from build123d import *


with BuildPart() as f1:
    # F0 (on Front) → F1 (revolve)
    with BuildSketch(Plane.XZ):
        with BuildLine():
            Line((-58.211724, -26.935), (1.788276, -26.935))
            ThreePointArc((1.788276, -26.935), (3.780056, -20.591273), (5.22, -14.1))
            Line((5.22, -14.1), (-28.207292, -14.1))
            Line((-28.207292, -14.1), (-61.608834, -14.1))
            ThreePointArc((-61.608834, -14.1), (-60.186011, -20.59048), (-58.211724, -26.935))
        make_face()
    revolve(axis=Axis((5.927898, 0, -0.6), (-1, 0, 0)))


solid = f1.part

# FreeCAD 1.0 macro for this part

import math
import FreeCAD as App
import Part
import Sketcher
Q = App.Units.Quantity

doc = App.newDocument("Part")
body = doc.addObject("PartDesign::Body", "Body")

# Sketch on XZ plane
sketch1 = body.newObject("Sketcher::SketchObject", "Sketch")
sketch1.AttachmentSupport = (doc.getObject("XZ_Plane"), [""])
sketch1.MapMode = "FlatFace"
sketch1.addGeometry(Part.LineSegment(App.Vector(-58.211724, -26.935, 0), App.Vector(1.788276, -26.935, 0)), False)
sketch1.addGeometry(Part.ArcOfCircle(Part.Circle(App.Vector(-70.989316, -0.600011, 0), App.Vector(0, 0, 1), 77.395798), math.radians(-19.892948), math.radians(-10.045369)), False)
sketch1.addGeometry(Part.LineSegment(App.Vector(5.22, -14.1, 0), App.Vector(-61.608834, -14.1, 0)), False)
sketch1.addGeometry(Part.ArcOfCircle(Part.Circle(App.Vector(14.633589, -0.787565, 0), App.Vector(0, 0, 1), 77.395917), math.radians(-170.095623), math.radians(-160.254671)), False)
sketch1.addGeometry(Part.LineSegment(App.Vector(14.633589, -0.6, 0), App.Vector(-70.989316, -0.6, 0)), True)  # axis
sketch1.addConstraint(Sketcher.Constraint("Coincident", 0, 2, 1, 1))
sketch1.addConstraint(Sketcher.Constraint("Coincident", 1, 2, 2, 1))
sketch1.addConstraint(Sketcher.Constraint("Coincident", 2, 2, 3, 1))
sketch1.addConstraint(Sketcher.Constraint("Coincident", 3, 2, 0, 1))
sketch1.addConstraint(Sketcher.Constraint("Horizontal", 0))
sketch1.addConstraint(Sketcher.Constraint("Horizontal", 2))
sketch1.addConstraint(Sketcher.Constraint("Horizontal", 4))
sketch1.addConstraint(Sketcher.Constraint("Vertical", 3, 3, 4, 1))
sketch1.addConstraint(Sketcher.Constraint("Vertical", 1, 3, 4, 2))
sketch1.addConstraint(Sketcher.Constraint("DistanceX", 0, 1, 0, 2, Q("60 mm")))
sketch1.addConstraint(Sketcher.Constraint("DistanceY", 1, 2, -1, 1, Q("14.1 mm")))
sketch1.addConstraint(Sketcher.Constraint("DistanceY", 4, 1, -1, 1, Q("0.6 mm")))
sketch1.addConstraint(Sketcher.Constraint("DistanceX", -1, 1, 1, 2, Q("5.22 mm")))
sketch1.addConstraint(Sketcher.Constraint("DistanceY", 0, 2, -1, 1, Q("26.935 mm")))
sketch1.addConstraint(Sketcher.Constraint("Radius", 1, Q("77.395798 mm")))
sketch1.addConstraint(Sketcher.Constraint("Radius", 3, Q("77.395917 mm")))
sketch1.addConstraint(Sketcher.Constraint("DistanceX", 2, 2, 2, 1, Q("66.828834 mm")))
sketch1.addConstraint(Sketcher.Constraint("DistanceY", 1, 3, -1, 1, Q("0.600011 mm")))
revolution = body.newObject("PartDesign::Revolution", "Revolution")
revolution.Profile = sketch1
revolution.ReferenceAxis = (sketch1, ["Axis0"])
revolution.Angle = 360

doc.recompute()
